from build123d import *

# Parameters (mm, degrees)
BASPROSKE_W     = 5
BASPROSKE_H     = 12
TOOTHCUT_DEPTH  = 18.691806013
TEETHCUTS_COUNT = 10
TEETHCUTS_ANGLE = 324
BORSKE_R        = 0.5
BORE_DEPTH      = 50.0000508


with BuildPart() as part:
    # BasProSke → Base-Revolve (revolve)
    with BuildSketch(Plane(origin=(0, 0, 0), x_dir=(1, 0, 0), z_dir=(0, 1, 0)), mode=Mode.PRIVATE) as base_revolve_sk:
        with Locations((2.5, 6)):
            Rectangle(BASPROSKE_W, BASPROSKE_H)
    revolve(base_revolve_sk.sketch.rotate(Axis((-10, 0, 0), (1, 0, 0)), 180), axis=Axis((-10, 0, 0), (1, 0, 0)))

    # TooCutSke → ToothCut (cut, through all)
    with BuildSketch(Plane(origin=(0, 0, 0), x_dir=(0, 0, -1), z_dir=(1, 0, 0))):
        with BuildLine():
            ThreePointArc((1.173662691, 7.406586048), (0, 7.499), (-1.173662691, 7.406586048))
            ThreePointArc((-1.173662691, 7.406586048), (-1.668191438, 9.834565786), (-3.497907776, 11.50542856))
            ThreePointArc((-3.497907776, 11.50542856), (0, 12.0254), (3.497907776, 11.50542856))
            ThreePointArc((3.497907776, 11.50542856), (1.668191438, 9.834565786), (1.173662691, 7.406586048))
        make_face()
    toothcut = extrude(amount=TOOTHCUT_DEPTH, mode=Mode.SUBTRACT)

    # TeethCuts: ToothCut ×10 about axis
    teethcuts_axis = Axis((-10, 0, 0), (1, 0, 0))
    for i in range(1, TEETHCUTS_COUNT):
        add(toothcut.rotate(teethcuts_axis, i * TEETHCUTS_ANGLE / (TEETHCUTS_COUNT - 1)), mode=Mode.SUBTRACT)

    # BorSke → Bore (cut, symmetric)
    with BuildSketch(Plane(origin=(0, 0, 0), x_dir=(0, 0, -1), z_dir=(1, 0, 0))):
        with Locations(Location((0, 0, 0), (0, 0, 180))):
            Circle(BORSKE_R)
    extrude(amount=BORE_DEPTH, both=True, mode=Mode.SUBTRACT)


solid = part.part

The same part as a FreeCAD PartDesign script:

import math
import FreeCAD as App
import Part
import Sketcher
Q = App.Units.Quantity

doc = App.newDocument("Part")
params = doc.addObject("Spreadsheet::Sheet", "Params")
for row, (alias, value) in enumerate([
    ("sketch1_width", "5 mm"),
    ("sketch1_height", "12 mm"),
    ("revolution_angle", "360 deg"),
    ("sketch2_radius", "4 mm"),
    ("sketch3_diameter", "1 mm"),
    ("pocket2_length", "100.000102 mm"),
], start=1):
    params.set(f"A{row}", alias)
    params.set(f"B{row}", "=" + value)
    params.setAlias(f"B{row}", alias)

body = doc.addObject("PartDesign::Body", "Body")

# Sketch on XZ plane
sketch1 = doc.addObject("Sketcher::SketchObject", "Sketch")
body.addObject(sketch1)
sketch1.AttachmentSupport = (doc.XZ_Plane, [""])
sketch1.MapMode = "FlatFace"
sketch1.addGeometry([
    Part.LineSegment(App.Vector(0, -12, 0), App.Vector(0, 0, 0)),
    Part.LineSegment(App.Vector(0, 0, 0), App.Vector(5, 0, 0)),
    Part.LineSegment(App.Vector(5, 0, 0), App.Vector(5, -12, 0)),
    Part.LineSegment(App.Vector(5, -12, 0), App.Vector(0, -12, 0)),
], False)
sketch1.addConstraint([
    Sketcher.Constraint("Coincident", 0, 2, 1, 1),
    Sketcher.Constraint("Coincident", 1, 2, 2, 1),
    Sketcher.Constraint("Coincident", 2, 2, 3, 1),
    Sketcher.Constraint("Coincident", 3, 2, 0, 1),
    Sketcher.Constraint("Vertical", 0),
    Sketcher.Constraint("Horizontal", 1),
    Sketcher.Constraint("Vertical", 2),
    Sketcher.Constraint("Horizontal", 3),
    Sketcher.Constraint("Coincident", 0, 2, -1, 1),
    Sketcher.Constraint("DistanceX", 1, 1, 1, 2, Q("5 mm")),
    Sketcher.Constraint("DistanceY", 0, 1, 0, 2, Q("12 mm")),
])
sketch1.setExpression("Constraints[9]", "Params.sketch1_width")
sketch1.setExpression("Constraints[10]", "Params.sketch1_height")
revolution = doc.addObject("PartDesign::Revolution", "Revolution")
body.addObject(revolution)
revolution.Profile = sketch1
revolution.ReferenceAxis = (sketch1, ["H_Axis"])
revolution.setExpression("Angle", "Params.revolution_angle")

# Sketch on YZ plane
sketch2 = doc.addObject("Sketcher::SketchObject", "Sketch001")
body.addObject(sketch2)
sketch2.AttachmentSupport = (doc.YZ_Plane, [""])
sketch2.MapMode = "FlatFace"
sketch2.addGeometry([
    Part.ArcOfCircle(Part.Circle(App.Vector(0, 0, 0), App.Vector(0, 0, 1), 7.5), math.radians(-9), math.radians(9)),
    Part.ArcOfCircle(Part.Circle(App.Vector(7.9, -5.1, 0), App.Vector(0, 0, 1), 4), math.radians(24), math.radians(97)),
    Part.ArcOfCircle(Part.Circle(App.Vector(0, 0, 0), App.Vector(0, 0, 1), 12), math.radians(-17), math.radians(17)),
    Part.ArcOfCircle(Part.Circle(App.Vector(7.9, 5.1, 0), App.Vector(0, 0, 1), 4), math.radians(-97), math.radians(-24)),
], False)
sketch2.addConstraint([
    Sketcher.Constraint("Coincident", 0, 1, 1, 2),
    Sketcher.Constraint("Coincident", 1, 1, 2, 1),
    Sketcher.Constraint("Coincident", 2, 2, 3, 2),
    Sketcher.Constraint("Coincident", 3, 1, 0, 2),
    Sketcher.Constraint("Coincident", 0, 3, -1, 1),
    Sketcher.Constraint("Coincident", 2, 3, -1, 1),
    Sketcher.Constraint("Equal", 1, 3),
    Sketcher.Constraint("Symmetric", 1, 3, 3, 3, -1),
    Sketcher.Constraint("Radius", 1, Q("4 mm")),
    Sketcher.Constraint("Radius", 0, Q("7.499 mm")),
    Sketcher.Constraint("Radius", 2, Q("12.0254 mm")),
    Sketcher.Constraint("DistanceY", 1, 3, 1, 1, Q("1.649801 mm")),
    Sketcher.Constraint("DistanceX", -1, 1, 1, 3, Q("7.861508 mm")),
])
sketch2.setExpression("Constraints[8]", "Params.sketch2_radius")
pocket1 = doc.addObject("PartDesign::Pocket", "Pocket")
body.addObject(pocket1)
pocket1.Profile = sketch2
pocket1.Type = "ThroughAll"
pocket1.Reversed = True
doc.recompute()

polarpattern = doc.addObject("PartDesign::PolarPattern", "PolarPattern")
body.addObject(polarpattern)
polarpattern.Originals = [pocket1]
polarpattern.Axis = (doc.X_Axis, [""])
polarpattern.Angle = 360
polarpattern.Occurrences = 10
body.Tip = polarpattern

# Sketch on YZ plane
sketch3 = doc.addObject("Sketcher::SketchObject", "Sketch002")
body.addObject(sketch3)
sketch3.AttachmentSupport = (doc.YZ_Plane, [""])
sketch3.MapMode = "FlatFace"
sketch3.addGeometry(Part.Circle(App.Vector(0, 0, 0), App.Vector(0, 0, 1), 0.5), False)
sketch3.addConstraint([
    Sketcher.Constraint("Coincident", 0, 3, -1, 1),
    Sketcher.Constraint("Diameter", 0, Q("1 mm")),
])
sketch3.setExpression("Constraints[1]", "Params.sketch3_diameter")
pocket2 = doc.addObject("PartDesign::Pocket", "Pocket001")
body.addObject(pocket2)
pocket2.Profile = sketch3
pocket2.setExpression("Length", "Params.pocket2_length")
pocket2.Midplane = True

doc.recompute()
